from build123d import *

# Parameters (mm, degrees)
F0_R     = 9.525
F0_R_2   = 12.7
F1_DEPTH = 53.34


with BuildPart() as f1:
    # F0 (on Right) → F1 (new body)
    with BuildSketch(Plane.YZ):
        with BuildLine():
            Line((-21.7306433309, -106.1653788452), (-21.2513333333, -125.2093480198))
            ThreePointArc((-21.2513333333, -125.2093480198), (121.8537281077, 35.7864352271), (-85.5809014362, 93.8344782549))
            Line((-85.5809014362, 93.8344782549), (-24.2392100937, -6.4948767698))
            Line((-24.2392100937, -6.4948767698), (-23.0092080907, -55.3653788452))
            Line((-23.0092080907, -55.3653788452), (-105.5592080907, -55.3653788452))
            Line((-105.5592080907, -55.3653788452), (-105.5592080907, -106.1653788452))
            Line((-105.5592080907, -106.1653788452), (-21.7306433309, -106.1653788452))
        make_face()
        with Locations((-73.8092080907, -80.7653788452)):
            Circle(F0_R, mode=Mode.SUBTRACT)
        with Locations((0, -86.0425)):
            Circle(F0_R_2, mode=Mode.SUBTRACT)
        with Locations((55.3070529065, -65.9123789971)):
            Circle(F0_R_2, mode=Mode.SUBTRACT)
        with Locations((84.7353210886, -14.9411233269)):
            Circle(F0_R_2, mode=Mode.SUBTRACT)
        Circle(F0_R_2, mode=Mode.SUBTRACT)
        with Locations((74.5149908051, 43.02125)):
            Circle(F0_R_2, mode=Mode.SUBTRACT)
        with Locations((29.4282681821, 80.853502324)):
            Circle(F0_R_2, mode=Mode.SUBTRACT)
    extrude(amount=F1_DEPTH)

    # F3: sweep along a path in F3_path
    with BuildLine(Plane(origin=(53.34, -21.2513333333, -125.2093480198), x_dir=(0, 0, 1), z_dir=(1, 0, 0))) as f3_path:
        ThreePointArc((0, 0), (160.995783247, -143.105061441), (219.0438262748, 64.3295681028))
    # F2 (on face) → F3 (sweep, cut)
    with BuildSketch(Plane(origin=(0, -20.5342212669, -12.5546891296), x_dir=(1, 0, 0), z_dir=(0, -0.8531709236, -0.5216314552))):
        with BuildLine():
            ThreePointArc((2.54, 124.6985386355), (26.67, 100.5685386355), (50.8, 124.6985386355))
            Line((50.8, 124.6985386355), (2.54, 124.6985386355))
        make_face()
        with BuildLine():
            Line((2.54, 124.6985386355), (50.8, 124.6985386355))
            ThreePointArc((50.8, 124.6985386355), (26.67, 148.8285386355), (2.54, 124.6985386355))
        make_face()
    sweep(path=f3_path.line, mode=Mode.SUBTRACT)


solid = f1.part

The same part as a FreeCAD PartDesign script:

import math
import FreeCAD as App
import Part
import Sketcher

V = App.Vector
Q = App.Units.Quantity

doc = App.newDocument("Part")
params = doc.addObject("Spreadsheet::Sheet", "Params")
for row, (alias, value) in enumerate([
    ("sketch1_diameter", "1 in"),
    ("sketch1_radius", "5 in"),
    ("sketch1_diameter2", "0.75 in"),
    ("sketch1_height", "2 in"),
    ("sketch1_width", "3.25 in"),
    ("pad1_length", "2.1 in"),
    ("sketch2_diameter", "1.9 in"),
    ("sketch3_radius", "5 in"),
], start=1):
    params.set(f"A{row}", alias)
    params.set(f"B{row}", "=" + value)
    params.setAlias(f"B{row}", alias)

body = doc.addObject("PartDesign::Body", "Body")

sketch1 = body.newObject("Sketcher::SketchObject", "Sketch")
sketch1.AttachmentSupport = (doc.getObject("YZ_Plane"), [""])
sketch1.MapMode = "FlatFace"
sketch1.addGeometry([
    Part.LineSegment(V(-22, -106, 0), V(-21, -125, 0)),
    Part.ArcOfCircle(Part.Circle(V(0, 0, 0), V(0, 0, 1), 127), math.radians(-100), math.radians(132)),
    Part.LineSegment(V(-86, 94, 0), V(-24, -6, 0)),
    Part.LineSegment(V(-24, -6, 0), V(-23, -55, 0)),
    Part.LineSegment(V(-23, -55, 0), V(-106, -55, 0)),
    Part.LineSegment(V(-106, -55, 0), V(-106, -106, 0)),
    Part.LineSegment(V(-106, -106, 0), V(-22, -106, 0)),
    Part.Circle(V(-74, -81, 0), V(0, 0, 1), 10),
    Part.Circle(V(0, -86, 0), V(0, 0, 1), 13),
    Part.Circle(V(55, -66, 0), V(0, 0, 1), 13),
    Part.Circle(V(85, -15, 0), V(0, 0, 1), 13),
    Part.Circle(V(0, 0, 0), V(0, 0, 1), 13),
    Part.Circle(V(75, 43, 0), V(0, 0, 1), 13),
    Part.Circle(V(29, 81, 0), V(0, 0, 1), 13),
], False)
sketch1.addConstraint([
    Sketcher.Constraint("Coincident", 0, 2, 1, 1),
    Sketcher.Constraint("Coincident", 1, 2, 2, 1),
    Sketcher.Constraint("Coincident", 2, 2, 3, 1),
    Sketcher.Constraint("Coincident", 3, 2, 4, 1),
    Sketcher.Constraint("Coincident", 4, 2, 5, 1),
    Sketcher.Constraint("Coincident", 5, 2, 6, 1),
    Sketcher.Constraint("Coincident", 6, 2, 0, 1),
    Sketcher.Constraint("Horizontal", 4),
    Sketcher.Constraint("Vertical", 5),
    Sketcher.Constraint("Horizontal", 6),
    Sketcher.Constraint("Coincident", 1, 3, -1, 1),
    Sketcher.Constraint("Coincident", 11, 3, -1, 1),
    Sketcher.Constraint("Equal", 8, 9),
    Sketcher.Constraint("Equal", 9, 10),
    Sketcher.Constraint("Equal", 10, 11),
    Sketcher.Constraint("Equal", 11, 12),
    Sketcher.Constraint("Equal", 12, 13),
    Sketcher.Constraint("PointOnObject", 8, 3, -2),
    Sketcher.Constraint("Parallel", 0, 3),
    Sketcher.Constraint("Diameter", 8, Q("1 in")),
    Sketcher.Constraint("Radius", 1, Q("5 in")),
    Sketcher.Constraint("Diameter", 7, Q("0.75 in")),
    Sketcher.Constraint("DistanceY", 5, 2, 5, 1, Q("2 in")),
    Sketcher.Constraint("DistanceX", 7, 3, 3, 2, Q("2 in")),
    Sketcher.Constraint("DistanceY", 7, 3, 3, 2, Q("1 in")),
    Sketcher.Constraint("DistanceX", 4, 2, 4, 1, Q("3.25 in")),
    Sketcher.Constraint("Distance", 0, Q("0.75 in")),
    Sketcher.Constraint("DistanceY", 8, 3, -1, 1, Q("3.3875 in")),
    Sketcher.Constraint("DistanceX", 1, 2, -1, 1, Q("85.580901 mm")),
    Sketcher.Constraint("DistanceY", 7, 3, 9, 3, Q("14.853 mm")),
    Sketcher.Constraint("Distance", 3, Q("48.885978 mm")),
    Sketcher.Constraint("DistanceX", 6, 1, 6, 2, Q("83.828565 mm")),
    Sketcher.Constraint("DistanceX", 7, 3, -1, 1, Q("73.809208 mm")),
    Sketcher.Constraint("DistanceY", 7, 3, -1, 1, Q("80.765379 mm")),
    Sketcher.Constraint("DistanceX", -1, 1, 10, 3, Q("84.735321 mm")),
    Sketcher.Constraint("DistanceX", -1, 1, 12, 3, Q("74.514991 mm")),
    Sketcher.Constraint("DistanceY", -1, 1, 12, 3, Q("43.02125 mm")),
    Sketcher.Constraint("DistanceX", -1, 1, 13, 3, Q("29.428268 mm")),
    Sketcher.Constraint("DistanceX", 7, 3, 9, 3, Q("129.116261 mm")),
    Sketcher.Constraint("DistanceY", 9, 3, 13, 3, Q("146.765881 mm")),
    Sketcher.Constraint("DistanceY", 10, 3, -1, 1, Q("14.941123 mm")),
])
sketch1.setExpression("Constraints[19]", "Params.sketch1_diameter")
sketch1.setExpression("Constraints[20]", "Params.sketch1_radius")
sketch1.setExpression("Constraints[21]", "Params.sketch1_diameter2")
sketch1.setExpression("Constraints[22]", "Params.sketch1_height")
sketch1.setExpression("Constraints[25]", "Params.sketch1_width")
pad1 = body.newObject("PartDesign::Pad", "Pad")
pad1.Profile = sketch1
pad1.setExpression("Length", "Params.pad1_length")

sketch2 = body.newObject("Sketcher::SketchObject", "Sketch001")
sketch2.Placement = App.Placement(V(0, -20.534221, -12.554689), App.Rotation(V(1, 0, 0), V(0, -0.521631455, 0.853170924), V(0, -0.853170924, -0.521631455), "ZXY"))
sketch2.addGeometry(Part.Circle(V(27, 125, 0), V(0, 0, 1), 24), False)
sketch2.addConstraint([
    Sketcher.Constraint("Diameter", 0, Q("1.9 in")),
    Sketcher.Constraint("DistanceX", -1, 1, 0, 3, Q("1.05 in")),
    Sketcher.Constraint("DistanceY", -1, 1, 0, 3, Q("124.698539 mm")),
])
sketch2.setExpression("Constraints[0]", "Params.sketch2_diameter")

sketch3 = body.newObject("Sketcher::SketchObject", "Sketch002")
sketch3.AttachmentSupport = (doc.getObject("YZ_Plane"), [""])
sketch3.MapMode = "FlatFace"
sketch3.AttachmentOffset = App.Placement(V(0, 0, 2.1 * 25.4), App.Rotation())
sketch3.addGeometry(Part.ArcOfCircle(Part.Circle(V(0, 0, 0), V(0, 0, 1), 127), math.radians(-100), math.radians(132)), False)
sketch3.addConstraint([
    Sketcher.Constraint("Coincident", 0, 3, -1, 1),
    Sketcher.Constraint("Radius", 0, Q("5 in")),
    Sketcher.Constraint("DistanceX", 0, 2, -1, 1, Q("85.580901 mm")),
    Sketcher.Constraint("DistanceY", 0, 1, -1, 1, Q("125.209348 mm")),
])
sketch3.setExpression("Constraints[1]", "Params.sketch3_radius")
doc.recompute()

subtractivepipe = body.newObject("PartDesign::SubtractivePipe", "SubtractivePipe")
subtractivepipe.Profile = sketch2
subtractivepipe.Spine = (sketch3, ["Edge1"])

doc.recompute()
